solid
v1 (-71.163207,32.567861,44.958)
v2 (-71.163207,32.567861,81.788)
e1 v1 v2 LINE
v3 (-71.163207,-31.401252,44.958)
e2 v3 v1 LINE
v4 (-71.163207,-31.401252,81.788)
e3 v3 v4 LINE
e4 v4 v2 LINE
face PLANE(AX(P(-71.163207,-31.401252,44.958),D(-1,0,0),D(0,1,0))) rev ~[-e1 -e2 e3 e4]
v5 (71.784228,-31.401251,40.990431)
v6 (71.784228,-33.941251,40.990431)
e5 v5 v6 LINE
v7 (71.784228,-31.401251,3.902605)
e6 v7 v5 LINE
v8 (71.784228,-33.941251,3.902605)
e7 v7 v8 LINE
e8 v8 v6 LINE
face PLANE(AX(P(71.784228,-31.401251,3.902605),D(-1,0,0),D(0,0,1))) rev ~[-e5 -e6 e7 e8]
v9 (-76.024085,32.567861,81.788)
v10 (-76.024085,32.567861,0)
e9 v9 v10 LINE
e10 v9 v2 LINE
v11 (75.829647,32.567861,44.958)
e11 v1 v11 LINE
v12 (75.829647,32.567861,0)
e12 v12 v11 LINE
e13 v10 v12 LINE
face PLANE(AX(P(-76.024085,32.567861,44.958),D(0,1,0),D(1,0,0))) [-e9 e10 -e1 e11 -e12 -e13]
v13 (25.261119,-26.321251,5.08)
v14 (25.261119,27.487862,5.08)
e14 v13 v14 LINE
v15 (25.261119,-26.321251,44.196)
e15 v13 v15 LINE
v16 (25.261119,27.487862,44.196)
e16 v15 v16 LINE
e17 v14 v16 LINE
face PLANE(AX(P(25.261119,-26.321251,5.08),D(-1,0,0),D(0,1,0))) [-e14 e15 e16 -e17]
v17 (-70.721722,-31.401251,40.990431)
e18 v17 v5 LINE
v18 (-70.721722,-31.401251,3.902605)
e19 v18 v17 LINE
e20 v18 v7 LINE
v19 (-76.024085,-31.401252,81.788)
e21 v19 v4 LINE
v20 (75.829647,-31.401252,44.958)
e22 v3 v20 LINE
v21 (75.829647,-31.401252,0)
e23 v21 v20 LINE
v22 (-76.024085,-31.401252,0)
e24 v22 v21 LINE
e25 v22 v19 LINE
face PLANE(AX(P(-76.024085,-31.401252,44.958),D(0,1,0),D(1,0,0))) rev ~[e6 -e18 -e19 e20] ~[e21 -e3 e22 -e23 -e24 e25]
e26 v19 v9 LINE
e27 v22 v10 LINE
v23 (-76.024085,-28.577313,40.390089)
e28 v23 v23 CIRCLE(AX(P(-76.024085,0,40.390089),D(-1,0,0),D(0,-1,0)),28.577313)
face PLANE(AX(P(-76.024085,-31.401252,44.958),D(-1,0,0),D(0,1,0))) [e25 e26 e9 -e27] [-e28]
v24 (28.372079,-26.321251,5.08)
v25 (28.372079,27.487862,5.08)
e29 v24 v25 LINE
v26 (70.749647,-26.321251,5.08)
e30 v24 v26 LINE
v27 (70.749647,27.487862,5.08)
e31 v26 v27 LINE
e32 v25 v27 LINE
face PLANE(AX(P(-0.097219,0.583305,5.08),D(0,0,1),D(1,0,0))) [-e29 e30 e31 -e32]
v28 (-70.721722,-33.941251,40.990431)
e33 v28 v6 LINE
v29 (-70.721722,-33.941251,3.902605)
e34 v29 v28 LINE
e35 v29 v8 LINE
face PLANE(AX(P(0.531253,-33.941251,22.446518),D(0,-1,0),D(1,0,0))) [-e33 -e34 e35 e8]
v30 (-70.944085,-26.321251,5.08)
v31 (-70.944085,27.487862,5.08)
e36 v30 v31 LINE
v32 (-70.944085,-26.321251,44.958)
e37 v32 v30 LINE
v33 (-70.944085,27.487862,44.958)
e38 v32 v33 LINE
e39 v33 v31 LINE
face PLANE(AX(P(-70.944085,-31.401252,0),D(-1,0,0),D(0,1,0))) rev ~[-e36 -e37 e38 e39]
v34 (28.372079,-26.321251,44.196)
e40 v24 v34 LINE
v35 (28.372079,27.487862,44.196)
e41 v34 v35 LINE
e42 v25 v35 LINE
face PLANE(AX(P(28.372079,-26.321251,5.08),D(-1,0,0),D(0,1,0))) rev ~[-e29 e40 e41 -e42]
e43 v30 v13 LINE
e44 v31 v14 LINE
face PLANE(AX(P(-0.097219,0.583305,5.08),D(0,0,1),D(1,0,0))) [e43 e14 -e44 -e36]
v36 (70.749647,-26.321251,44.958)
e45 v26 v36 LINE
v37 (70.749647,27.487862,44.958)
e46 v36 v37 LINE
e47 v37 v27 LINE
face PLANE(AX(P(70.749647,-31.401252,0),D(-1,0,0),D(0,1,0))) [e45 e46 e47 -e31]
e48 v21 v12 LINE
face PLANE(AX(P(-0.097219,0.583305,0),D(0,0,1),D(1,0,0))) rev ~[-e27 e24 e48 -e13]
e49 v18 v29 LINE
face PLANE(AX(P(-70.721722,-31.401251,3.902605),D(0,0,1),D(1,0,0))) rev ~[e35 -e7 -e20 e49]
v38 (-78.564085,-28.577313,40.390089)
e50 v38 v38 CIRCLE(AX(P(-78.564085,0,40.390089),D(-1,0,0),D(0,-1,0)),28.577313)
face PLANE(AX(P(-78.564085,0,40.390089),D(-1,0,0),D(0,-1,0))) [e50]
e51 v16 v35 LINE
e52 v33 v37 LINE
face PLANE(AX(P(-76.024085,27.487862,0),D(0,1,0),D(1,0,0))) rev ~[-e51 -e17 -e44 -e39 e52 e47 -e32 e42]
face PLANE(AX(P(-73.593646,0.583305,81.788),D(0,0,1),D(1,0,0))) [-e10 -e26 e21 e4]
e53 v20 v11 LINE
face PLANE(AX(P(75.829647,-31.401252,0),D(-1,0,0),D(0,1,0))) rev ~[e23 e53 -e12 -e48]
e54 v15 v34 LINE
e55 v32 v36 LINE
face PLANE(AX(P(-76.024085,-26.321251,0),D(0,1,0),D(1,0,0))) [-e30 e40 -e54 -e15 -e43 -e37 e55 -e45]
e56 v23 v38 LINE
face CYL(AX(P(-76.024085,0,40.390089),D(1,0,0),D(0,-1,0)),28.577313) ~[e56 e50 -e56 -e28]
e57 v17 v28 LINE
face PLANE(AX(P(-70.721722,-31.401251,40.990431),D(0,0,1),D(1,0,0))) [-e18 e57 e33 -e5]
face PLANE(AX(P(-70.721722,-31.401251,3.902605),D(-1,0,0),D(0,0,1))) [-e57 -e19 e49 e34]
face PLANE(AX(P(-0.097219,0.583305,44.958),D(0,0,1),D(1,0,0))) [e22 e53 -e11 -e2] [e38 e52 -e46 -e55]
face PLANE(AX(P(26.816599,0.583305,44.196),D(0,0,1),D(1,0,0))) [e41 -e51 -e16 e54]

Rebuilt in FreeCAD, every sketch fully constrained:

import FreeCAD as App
import Part
import Sketcher
Q = App.Units.Quantity


def faces_at(feature, points):
    """Names of the faces that lie closest to the given points."""
    faces = feature.Shape.Faces
    near = lambda p: min(range(len(faces)), key=lambda i: faces[i].distToShape(Part.Vertex(*p))[0])
    return sorted({f"Face{near(p) + 1}" for p in points})


def add_polygon(sketch, points):
    """Adds a closed chain of lines whose ends are joined by coincident constraints."""
    first, n = sketch.GeometryCount, len(points)
    for a, b in zip(points, points[1:] + points[:1]):
        sketch.addGeometry(Part.LineSegment(App.Vector(*a, 0), App.Vector(*b, 0)), False)
    for i in range(n):
        sketch.addConstraint(Sketcher.Constraint("Coincident", first + i, 2, first + (i + 1) % n, 1))

doc = App.newDocument("Part")
body = doc.addObject("PartDesign::Body", "Body")

# Sketch on XY plane
sketch1 = doc.addObject("Sketcher::SketchObject", "Sketch")
body.addObject(sketch1)
sketch1.AttachmentSupport = (doc.XY_Plane, [""])
sketch1.MapMode = "FlatFace"
add_polygon(sketch1, [(-76.024085, 32.567861), (-76.024085, -31.401252), (75.829647, -31.401252), (75.829647, 32.567861)])  # lines 0-3
sketch1.addConstraint([
    Sketcher.Constraint("Vertical", 0),
    Sketcher.Constraint("Horizontal", 1),
    Sketcher.Constraint("Vertical", 2),
    Sketcher.Constraint("Horizontal", 3),
    Sketcher.Constraint("DistanceX", 1, 1, 1, 2, 151.853732),
    Sketcher.Constraint("DistanceY", 0, 2, 0, 1, 63.969113),
    Sketcher.Constraint("DistanceY", 0, 2, -1, 1, 31.401252),
    Sketcher.Constraint("DistanceX", 0, 2, -1, 1, 76.024085),
])
pad1 = doc.addObject("PartDesign::Pad", "Pad")
body.addObject(pad1)
pad1.Profile = sketch1
pad1.Length = Q("1.77 in")
doc.recompute()

thickness = doc.addObject("PartDesign::Thickness", "Thickness")
body.addObject(thickness)
thickness.Base = (pad1, faces_at(pad1, [(-0.097, 0.583, 44.958)]))
thickness.Value = Q("0.2 in")
thickness.Reversed = True
thickness.Join = "Arc"

# Sketch on XY plane
sketch2 = doc.addObject("Sketcher::SketchObject", "Sketch001")
body.addObject(sketch2)
sketch2.AttachmentSupport = (doc.XY_Plane, [""])
sketch2.MapMode = "FlatFace"
sketch2.AttachmentOffset = App.Placement(App.Vector(0, 0, 1.77 * 25.4), App.Rotation())
add_polygon(sketch2, [(-76.024085, 32.567861), (-76.024085, -31.401252), (-71.163207, -31.401252), (-71.163207, 32.567861)])  # lines 0-3
sketch2.addConstraint([
    Sketcher.Constraint("Vertical", 0),
    Sketcher.Constraint("Horizontal", 1),
    Sketcher.Constraint("Vertical", 2),
    Sketcher.Constraint("Horizontal", 3),
    Sketcher.Constraint("DistanceX", 1, 1, 1, 2, 4.860878),
    Sketcher.Constraint("DistanceY", 0, 2, 0, 1, 63.969113),
    Sketcher.Constraint("DistanceY", 0, 2, -1, 1, 31.401252),
    Sketcher.Constraint("DistanceX", 0, 2, -1, 1, 76.024085),
])
pad2 = doc.addObject("PartDesign::Pad", "Pad001")
body.addObject(pad2)
pad2.Profile = sketch2
pad2.Length = Q("1.45 in")

# Sketch on YZ plane
sketch3 = doc.addObject("Sketcher::SketchObject", "Sketch002")
body.addObject(sketch3)
sketch3.AttachmentSupport = (doc.YZ_Plane, [""])
sketch3.MapMode = "FlatFace"
sketch3.AttachmentOffset = App.Placement(App.Vector(0, 0, -76.024085), App.Rotation())
sketch3.addGeometry(Part.Circle(App.Vector(0, 40.390089, 0), App.Vector(0, 0, 1), 28.577313), False)
sketch3.addConstraint([
    Sketcher.Constraint("PointOnObject", 0, 3, -2),
    Sketcher.Constraint("Diameter", 0, 57.154626),
    Sketcher.Constraint("DistanceY", -1, 1, 0, 3, 40.390089),
])
pad3 = doc.addObject("PartDesign::Pad", "Pad002")
body.addObject(pad3)
pad3.Profile = sketch3
pad3.Length = Q("0.1 in")
pad3.Reversed = True

# Sketch on XZ plane
sketch4 = doc.addObject("Sketcher::SketchObject", "Sketch003")
body.addObject(sketch4)
sketch4.AttachmentSupport = (doc.XZ_Plane, [""])
sketch4.MapMode = "FlatFace"
sketch4.AttachmentOffset = App.Placement(App.Vector(0, 0, 31.401251), App.Rotation())
add_polygon(sketch4, [(-70.721722, 40.990431), (-70.721722, 3.902605), (71.784228, 3.902605), (71.784228, 40.990431)])  # lines 0-3
sketch4.addConstraint([
    Sketcher.Constraint("Vertical", 0),
    Sketcher.Constraint("Horizontal", 1),
    Sketcher.Constraint("Vertical", 2),
    Sketcher.Constraint("Horizontal", 3),
    Sketcher.Constraint("DistanceX", 1, 1, 1, 2, 142.505951),
    Sketcher.Constraint("DistanceY", 0, 2, 0, 1, 37.087826),
    Sketcher.Constraint("DistanceX", -1, 1, 1, 2, 71.784228),
    Sketcher.Constraint("DistanceY", -1, 1, 2, 2, 40.990431),
])
pad4 = doc.addObject("PartDesign::Pad", "Pad003")
body.addObject(pad4)
pad4.Profile = sketch4
pad4.Length = Q("0.1 in")

# Sketch on XY plane
sketch5 = doc.addObject("Sketcher::SketchObject", "Sketch004")
body.addObject(sketch5)
sketch5.AttachmentSupport = (doc.XY_Plane, [""])
sketch5.MapMode = "FlatFace"
sketch5.AttachmentOffset = App.Placement(App.Vector(0, 0, 0.2 * 25.4), App.Rotation())
add_polygon(sketch5, [(25.261119, 27.487862), (25.261119, -26.321251), (28.372079, -26.321251), (28.372079, 27.487862)])  # lines 0-3
sketch5.addConstraint([
    Sketcher.Constraint("Vertical", 0),
    Sketcher.Constraint("Horizontal", 1),
    Sketcher.Constraint("Vertical", 2),
    Sketcher.Constraint("Horizontal", 3),
    Sketcher.Constraint("DistanceX", 1, 1, 1, 2, 3.11096),
    Sketcher.Constraint("DistanceY", 0, 2, 0, 1, 53.809113),
    Sketcher.Constraint("DistanceX", -1, 1, 0, 2, 25.261119),
    Sketcher.Constraint("DistanceY", 0, 2, -1, 1, 26.321251),
])
pad5 = doc.addObject("PartDesign::Pad", "Pad004")
body.addObject(pad5)
pad5.Profile = sketch5
pad5.Length = Q("1.54 in")

doc.recompute()
